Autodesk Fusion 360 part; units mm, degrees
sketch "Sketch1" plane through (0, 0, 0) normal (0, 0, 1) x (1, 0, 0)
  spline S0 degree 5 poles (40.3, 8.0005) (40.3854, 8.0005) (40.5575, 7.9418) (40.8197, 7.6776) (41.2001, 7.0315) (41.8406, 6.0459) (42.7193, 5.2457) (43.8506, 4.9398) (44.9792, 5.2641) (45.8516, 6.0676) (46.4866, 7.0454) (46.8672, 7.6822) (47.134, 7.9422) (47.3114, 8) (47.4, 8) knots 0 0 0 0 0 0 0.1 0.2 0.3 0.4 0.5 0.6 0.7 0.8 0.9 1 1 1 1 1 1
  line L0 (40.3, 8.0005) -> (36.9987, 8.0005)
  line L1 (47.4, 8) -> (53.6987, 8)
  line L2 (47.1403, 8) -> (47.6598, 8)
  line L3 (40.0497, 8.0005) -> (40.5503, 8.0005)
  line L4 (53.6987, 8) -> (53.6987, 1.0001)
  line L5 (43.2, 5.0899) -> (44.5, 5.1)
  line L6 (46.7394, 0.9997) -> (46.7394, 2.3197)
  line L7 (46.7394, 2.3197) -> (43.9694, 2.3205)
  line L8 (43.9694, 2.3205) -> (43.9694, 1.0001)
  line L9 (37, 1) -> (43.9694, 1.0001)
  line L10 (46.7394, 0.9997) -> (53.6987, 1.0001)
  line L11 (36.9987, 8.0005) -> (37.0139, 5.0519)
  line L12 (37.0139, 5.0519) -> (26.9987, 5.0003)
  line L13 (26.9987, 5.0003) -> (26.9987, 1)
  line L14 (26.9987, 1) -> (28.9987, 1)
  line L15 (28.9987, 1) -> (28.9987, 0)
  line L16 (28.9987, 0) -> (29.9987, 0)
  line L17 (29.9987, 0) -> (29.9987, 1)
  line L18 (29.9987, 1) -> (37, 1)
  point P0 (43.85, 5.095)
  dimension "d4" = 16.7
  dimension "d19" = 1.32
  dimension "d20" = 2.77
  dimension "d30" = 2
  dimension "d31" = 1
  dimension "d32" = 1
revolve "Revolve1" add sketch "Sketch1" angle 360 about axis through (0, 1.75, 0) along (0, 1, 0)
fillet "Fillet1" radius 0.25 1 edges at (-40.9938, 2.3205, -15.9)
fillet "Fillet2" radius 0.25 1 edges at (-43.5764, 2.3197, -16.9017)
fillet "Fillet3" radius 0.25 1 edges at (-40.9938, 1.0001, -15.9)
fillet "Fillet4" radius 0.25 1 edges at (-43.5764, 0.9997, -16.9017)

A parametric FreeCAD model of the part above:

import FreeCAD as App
import Part
import Sketcher
from FreeCAD import Vector
Q = App.Units.Quantity


def edges_at(feature, points):
    """Names of the edges that pass closest to the given points."""
    edges = feature.Shape.Edges
    near = lambda p: min(range(len(edges)), key=lambda i: edges[i].distToShape(Part.Vertex(*p))[0])
    return sorted({f"Edge{near(p) + 1}" for p in points})

doc = App.newDocument("Part")
body = doc.addObject("PartDesign::Body", "Body")

# Sketch on XY plane
sketch1 = body.newObject("Sketcher::SketchObject", "Sketch")
sketch1.AttachmentSupport = (doc.getObject("XY_Plane"), [""])
sketch1.MapMode = "FlatFace"
sketch1.addGeometry(Part.BSplineCurve([Vector(40.3, 8.0005, 0), Vector(40.3854, 8.0005, 0), Vector(40.5575, 7.9418, 0), Vector(40.8197, 7.6776, 0), Vector(41.2001, 7.0315, 0), Vector(41.8406, 6.0459, 0), Vector(42.543573, 5.405728, 0), Vector(43.184482, 5.148042, 0), Vector(43.628239, 5.093239, 0), Vector(43.850006, 5.09496, 0), Vector(43.850022, 5.09496, 0)], [6, 1, 1, 1, 1, 1, 6], [0, 0.1, 0.2, 0.3, 0.4, 0.5, 0.500007433], False, 5, [1, 1, 1, 1, 1, 1, 1, 1, 1, 1, 1], False), False)
sketch1.addGeometry(Part.LineSegment(Vector(40.3, 8.0005, 0), Vector(36.9987, 8.0005, 0)), False)
sketch1.addGeometry(Part.LineSegment(Vector(36.9987, 8.0005, 0), Vector(37.0139, 5.0519, 0)), False)
sketch1.addGeometry(Part.LineSegment(Vector(37.0139, 5.0519, 0), Vector(26.9987, 5.0003, 0)), False)
sketch1.addGeometry(Part.LineSegment(Vector(26.9987, 5.0003, 0), Vector(26.9987, 1, 0)), False)
sketch1.addGeometry(Part.LineSegment(Vector(26.9987, 1, 0), Vector(28.9987, 1, 0)), False)
sketch1.addGeometry(Part.LineSegment(Vector(28.9987, 1, 0), Vector(28.9987, 0, 0)), False)
sketch1.addGeometry(Part.LineSegment(Vector(28.9987, 0, 0), Vector(29.9987, 0, 0)), False)
sketch1.addGeometry(Part.LineSegment(Vector(29.9987, 0, 0), Vector(29.9987, 1, 0)), False)
sketch1.addGeometry(Part.LineSegment(Vector(29.9987, 1, 0), Vector(37, 1, 0)), False)
sketch1.addGeometry(Part.LineSegment(Vector(37, 1, 0), Vector(43.9694, 1.0001, 0)), False)
sketch1.addGeometry(Part.LineSegment(Vector(43.9694, 1.0001, 0), Vector(43.9694, 2.3205, 0)), False)
sketch1.addGeometry(Part.LineSegment(Vector(43.9694, 2.3205, 0), Vector(46.7394, 2.3197, 0)), False)
sketch1.addGeometry(Part.LineSegment(Vector(46.7394, 2.3197, 0), Vector(46.7394, 0.9997, 0)), False)
sketch1.addGeometry(Part.LineSegment(Vector(46.7394, 0.9997, 0), Vector(53.6987, 1.0001, 0)), False)
sketch1.addGeometry(Part.LineSegment(Vector(53.6987, 1.0001, 0), Vector(53.6987, 8, 0)), False)
sketch1.addGeometry(Part.LineSegment(Vector(53.6987, 8, 0), Vector(47.4, 8, 0)), False)
sketch1.addGeometry(Part.BSplineCurve([Vector(43.850022, 5.09496, 0), Vector(44.071756, 5.096683, 0), Vector(44.514997, 5.15836, 0), Vector(45.153706, 5.424824, 0), Vector(45.851609, 6.067615, 0), Vector(46.4866, 7.0454, 0), Vector(46.8672, 7.6822, 0), Vector(47.134, 7.9422, 0), Vector(47.3114, 8, 0), Vector(47.4, 8, 0)], [6, 1, 1, 1, 1, 6], [0.500007433, 0.6, 0.7, 0.8, 0.9, 1], False, 5, [1, 1, 1, 1, 1, 1, 1, 1, 1, 1], False), False)
sketch1.addConstraint(Sketcher.Constraint("Block", 0))
sketch1.addConstraint(Sketcher.Constraint("Block", 17))
sketch1.addConstraint(Sketcher.Constraint("Coincident", 0, 1, 1, 1))
sketch1.addConstraint(Sketcher.Constraint("Coincident", 1, 2, 2, 1))
sketch1.addConstraint(Sketcher.Constraint("Coincident", 2, 2, 3, 1))
sketch1.addConstraint(Sketcher.Constraint("Coincident", 3, 2, 4, 1))
sketch1.addConstraint(Sketcher.Constraint("Coincident", 4, 2, 5, 1))
sketch1.addConstraint(Sketcher.Constraint("Coincident", 5, 2, 6, 1))
sketch1.addConstraint(Sketcher.Constraint("Coincident", 6, 2, 7, 1))
sketch1.addConstraint(Sketcher.Constraint("Coincident", 7, 2, 8, 1))
sketch1.addConstraint(Sketcher.Constraint("Coincident", 8, 2, 9, 1))
sketch1.addConstraint(Sketcher.Constraint("Coincident", 9, 2, 10, 1))
sketch1.addConstraint(Sketcher.Constraint("Coincident", 10, 2, 11, 1))
sketch1.addConstraint(Sketcher.Constraint("Coincident", 11, 2, 12, 1))
sketch1.addConstraint(Sketcher.Constraint("Coincident", 12, 2, 13, 1))
sketch1.addConstraint(Sketcher.Constraint("Coincident", 13, 2, 14, 1))
sketch1.addConstraint(Sketcher.Constraint("Coincident", 14, 2, 15, 1))
sketch1.addConstraint(Sketcher.Constraint("Coincident", 15, 2, 16, 1))
sketch1.addConstraint(Sketcher.Constraint("Coincident", 16, 2, 17, 2))
sketch1.addConstraint(Sketcher.Constraint("Horizontal", 1))
sketch1.addConstraint(Sketcher.Constraint("Vertical", 4))
sketch1.addConstraint(Sketcher.Constraint("Horizontal", 5))
sketch1.addConstraint(Sketcher.Constraint("Vertical", 6))
sketch1.addConstraint(Sketcher.Constraint("Horizontal", 7))
sketch1.addConstraint(Sketcher.Constraint("Vertical", 8))
sketch1.addConstraint(Sketcher.Constraint("Horizontal", 9))
sketch1.addConstraint(Sketcher.Constraint("Horizontal", 10))
sketch1.addConstraint(Sketcher.Constraint("Vertical", 11))
sketch1.addConstraint(Sketcher.Constraint("Vertical", 13))
sketch1.addConstraint(Sketcher.Constraint("Vertical", 15))
sketch1.addConstraint(Sketcher.Constraint("Horizontal", 16))
sketch1.addConstraint(Sketcher.Constraint("PointOnObject", 6, 2, -1))
sketch1.addConstraint(Sketcher.Constraint("DistanceX", 5, 1, 5, 2, Q("2 mm")))
sketch1.addConstraint(Sketcher.Constraint("DistanceX", 7, 1, 7, 2, Q("1 mm")))
sketch1.addConstraint(Sketcher.Constraint("DistanceY", 6, 2, 6, 1, Q("1 mm")))
sketch1.addConstraint(Sketcher.Constraint("DistanceY", 8, 1, 8, 2, Q("1 mm")))
sketch1.addConstraint(Sketcher.Constraint("DistanceY", -1, 1, 14, 2, Q("1 mm")))
sketch1.addConstraint(Sketcher.Constraint("DistanceY", 13, 2, 13, 1, Q("1.32 mm")))
sketch1.addConstraint(Sketcher.Constraint("Distance", 12, Q("2.77 mm")))
sketch1.addConstraint(Sketcher.Constraint("DistanceY", 11, 1, 11, 2, Q("1.3204 mm")))
sketch1.addConstraint(Sketcher.Constraint("DistanceX", -1, 1, 9, 2, Q("37 mm")))
sketch1.addConstraint(Sketcher.Constraint("DistanceX", 3, 2, 1, 2, Q("10 mm")))
sketch1.addConstraint(Sketcher.Constraint("DistanceY", -1, 1, 13, 2, Q("0.9997 mm")))
sketch1.addConstraint(Sketcher.Constraint("DistanceX", 1, 2, 1, 1, Q("3.3013 mm")))
sketch1.addConstraint(Sketcher.Constraint("DistanceX", 10, 1, 10, 2, Q("6.9694 mm")))
sketch1.addConstraint(Sketcher.Constraint("DistanceX", 16, 2, 16, 1, Q("6.2987 mm")))
sketch1.addConstraint(Sketcher.Constraint("DistanceY", 4, 2, 4, 1, Q("4.0003 mm")))
sketch1.addConstraint(Sketcher.Constraint("DistanceX", -1, 1, 2, 2, Q("37.014 mm")))
sketch1.addConstraint(Sketcher.Constraint("DistanceY", -1, 1, 2, 2, Q("5.052 mm")))
revolution = body.newObject("PartDesign::Revolution", "Revolution")
revolution.Profile = sketch1
revolution.ReferenceAxis = (sketch1, ["V_Axis"])
revolution.Angle = 360
doc.recompute()

fillet = body.newObject("PartDesign::Fillet", "Fillet")
fillet.Base = (revolution, edges_at(revolution, [(-40.994, 2.321, -15.9)]))
fillet.Radius = 0.25
doc.recompute()

fillet2 = body.newObject("PartDesign::Fillet", "Fillet001")
fillet2.Base = (fillet, edges_at(fillet, [(-43.576, 2.32, -16.902)]))
fillet2.Radius = 0.25
doc.recompute()

fillet3 = body.newObject("PartDesign::Fillet", "Fillet002")
fillet3.Base = (fillet2, edges_at(fillet2, [(-40.994, 1, -15.9)]))
fillet3.Radius = 0.25
doc.recompute()

fillet4 = body.newObject("PartDesign::Fillet", "Fillet003")
fillet4.Base = (fillet3, edges_at(fillet3, [(-43.576, 1, -16.902)]))
fillet4.Radius = 0.25

doc.recompute()
